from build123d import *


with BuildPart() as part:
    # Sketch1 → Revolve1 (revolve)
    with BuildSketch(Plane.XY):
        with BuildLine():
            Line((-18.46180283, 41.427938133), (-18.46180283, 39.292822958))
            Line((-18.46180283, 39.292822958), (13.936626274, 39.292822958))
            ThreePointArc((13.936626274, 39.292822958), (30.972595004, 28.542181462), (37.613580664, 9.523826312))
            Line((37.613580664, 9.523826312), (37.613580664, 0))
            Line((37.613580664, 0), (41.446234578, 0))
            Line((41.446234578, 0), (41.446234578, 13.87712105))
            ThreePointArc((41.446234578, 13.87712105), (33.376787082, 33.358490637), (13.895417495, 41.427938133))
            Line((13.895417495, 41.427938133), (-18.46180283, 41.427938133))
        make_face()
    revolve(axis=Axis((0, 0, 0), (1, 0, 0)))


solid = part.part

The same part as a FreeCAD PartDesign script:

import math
import FreeCAD as App
import Part
import Sketcher

doc = App.newDocument("Part")
body = doc.addObject("PartDesign::Body", "Body")

# Sketch on XY plane
sketch1 = body.newObject("Sketcher::SketchObject", "Sketch")
sketch1.AttachmentSupport = (doc.getObject("XY_Plane"), [""])
sketch1.MapMode = "FlatFace"
sketch1.addGeometry(Part.LineSegment(App.Vector(-18.5, 41.4, 0), App.Vector(-18.5, 39.3, 0)), False)
sketch1.addGeometry(Part.LineSegment(App.Vector(-18.5, 39.3, 0), App.Vector(13.9, 39.3, 0)), False)
sketch1.addGeometry(Part.ArcOfCircle(Part.Circle(App.Vector(7.1, 9.5, 0), App.Vector(0, 0, 1), 30.6), math.radians(0), math.radians(77)), False)
sketch1.addGeometry(Part.LineSegment(App.Vector(37.6, 9.5, 0), App.Vector(37.6, 0, 0)), False)
sketch1.addGeometry(Part.LineSegment(App.Vector(37.6, 0, 0), App.Vector(41.4, 0, 0)), False)
sketch1.addGeometry(Part.LineSegment(App.Vector(41.4, 0, 0), App.Vector(41.4, 13.9, 0)), False)
sketch1.addGeometry(Part.ArcOfCircle(Part.Circle(App.Vector(13.9, 13.9, 0), App.Vector(0, 0, 1), 27.6), math.radians(0), math.radians(90)), False)
sketch1.addGeometry(Part.LineSegment(App.Vector(13.9, 41.4, 0), App.Vector(-18.5, 41.4, 0)), False)
sketch1.addConstraint(Sketcher.Constraint("Coincident", 0, 2, 1, 1))
sketch1.addConstraint(Sketcher.Constraint("Coincident", 1, 2, 2, 2))
sketch1.addConstraint(Sketcher.Constraint("Tangent", 2, 1, 3, 1))
sketch1.addConstraint(Sketcher.Constraint("Coincident", 3, 2, 4, 1))
sketch1.addConstraint(Sketcher.Constraint("Coincident", 4, 2, 5, 1))
sketch1.addConstraint(Sketcher.Constraint("Tangent", 5, 2, 6, 1))
sketch1.addConstraint(Sketcher.Constraint("Tangent", 6, 2, 7, 1))
sketch1.addConstraint(Sketcher.Constraint("Coincident", 7, 2, 0, 1))
sketch1.addConstraint(Sketcher.Constraint("Vertical", 0))
sketch1.addConstraint(Sketcher.Constraint("Horizontal", 1))
sketch1.addConstraint(Sketcher.Constraint("Vertical", 3))
sketch1.addConstraint(Sketcher.Constraint("Horizontal", 4))
sketch1.addConstraint(Sketcher.Constraint("Vertical", 5))
sketch1.addConstraint(Sketcher.Constraint("Horizontal", 7))
sketch1.addConstraint(Sketcher.Constraint("PointOnObject", 3, 2, -1))
sketch1.addConstraint(Sketcher.Constraint("Radius", 2, 30.552733))
sketch1.addConstraint(Sketcher.Constraint("Radius", 6, 27.550817))
sketch1.addConstraint(Sketcher.Constraint("DistanceX", 1, 1, 1, 2, 32.398429))
sketch1.addConstraint(Sketcher.Constraint("DistanceX", 7, 2, 7, 1, 32.35722))
sketch1.addConstraint(Sketcher.Constraint("DistanceY", 5, 1, 5, 2, 13.877121))
sketch1.addConstraint(Sketcher.Constraint("DistanceY", 6, 3, 0, 2, 25.415702))
sketch1.addConstraint(Sketcher.Constraint("DistanceX", 4, 1, 4, 2, 3.832654))
sketch1.addConstraint(Sketcher.Constraint("DistanceX", -1, 1, 2, 1, 37.613581))
revolution = body.newObject("PartDesign::Revolution", "Revolution")
revolution.Profile = sketch1
revolution.ReferenceAxis = (sketch1, ["H_Axis"])
revolution.Angle = 360

doc.recompute()
